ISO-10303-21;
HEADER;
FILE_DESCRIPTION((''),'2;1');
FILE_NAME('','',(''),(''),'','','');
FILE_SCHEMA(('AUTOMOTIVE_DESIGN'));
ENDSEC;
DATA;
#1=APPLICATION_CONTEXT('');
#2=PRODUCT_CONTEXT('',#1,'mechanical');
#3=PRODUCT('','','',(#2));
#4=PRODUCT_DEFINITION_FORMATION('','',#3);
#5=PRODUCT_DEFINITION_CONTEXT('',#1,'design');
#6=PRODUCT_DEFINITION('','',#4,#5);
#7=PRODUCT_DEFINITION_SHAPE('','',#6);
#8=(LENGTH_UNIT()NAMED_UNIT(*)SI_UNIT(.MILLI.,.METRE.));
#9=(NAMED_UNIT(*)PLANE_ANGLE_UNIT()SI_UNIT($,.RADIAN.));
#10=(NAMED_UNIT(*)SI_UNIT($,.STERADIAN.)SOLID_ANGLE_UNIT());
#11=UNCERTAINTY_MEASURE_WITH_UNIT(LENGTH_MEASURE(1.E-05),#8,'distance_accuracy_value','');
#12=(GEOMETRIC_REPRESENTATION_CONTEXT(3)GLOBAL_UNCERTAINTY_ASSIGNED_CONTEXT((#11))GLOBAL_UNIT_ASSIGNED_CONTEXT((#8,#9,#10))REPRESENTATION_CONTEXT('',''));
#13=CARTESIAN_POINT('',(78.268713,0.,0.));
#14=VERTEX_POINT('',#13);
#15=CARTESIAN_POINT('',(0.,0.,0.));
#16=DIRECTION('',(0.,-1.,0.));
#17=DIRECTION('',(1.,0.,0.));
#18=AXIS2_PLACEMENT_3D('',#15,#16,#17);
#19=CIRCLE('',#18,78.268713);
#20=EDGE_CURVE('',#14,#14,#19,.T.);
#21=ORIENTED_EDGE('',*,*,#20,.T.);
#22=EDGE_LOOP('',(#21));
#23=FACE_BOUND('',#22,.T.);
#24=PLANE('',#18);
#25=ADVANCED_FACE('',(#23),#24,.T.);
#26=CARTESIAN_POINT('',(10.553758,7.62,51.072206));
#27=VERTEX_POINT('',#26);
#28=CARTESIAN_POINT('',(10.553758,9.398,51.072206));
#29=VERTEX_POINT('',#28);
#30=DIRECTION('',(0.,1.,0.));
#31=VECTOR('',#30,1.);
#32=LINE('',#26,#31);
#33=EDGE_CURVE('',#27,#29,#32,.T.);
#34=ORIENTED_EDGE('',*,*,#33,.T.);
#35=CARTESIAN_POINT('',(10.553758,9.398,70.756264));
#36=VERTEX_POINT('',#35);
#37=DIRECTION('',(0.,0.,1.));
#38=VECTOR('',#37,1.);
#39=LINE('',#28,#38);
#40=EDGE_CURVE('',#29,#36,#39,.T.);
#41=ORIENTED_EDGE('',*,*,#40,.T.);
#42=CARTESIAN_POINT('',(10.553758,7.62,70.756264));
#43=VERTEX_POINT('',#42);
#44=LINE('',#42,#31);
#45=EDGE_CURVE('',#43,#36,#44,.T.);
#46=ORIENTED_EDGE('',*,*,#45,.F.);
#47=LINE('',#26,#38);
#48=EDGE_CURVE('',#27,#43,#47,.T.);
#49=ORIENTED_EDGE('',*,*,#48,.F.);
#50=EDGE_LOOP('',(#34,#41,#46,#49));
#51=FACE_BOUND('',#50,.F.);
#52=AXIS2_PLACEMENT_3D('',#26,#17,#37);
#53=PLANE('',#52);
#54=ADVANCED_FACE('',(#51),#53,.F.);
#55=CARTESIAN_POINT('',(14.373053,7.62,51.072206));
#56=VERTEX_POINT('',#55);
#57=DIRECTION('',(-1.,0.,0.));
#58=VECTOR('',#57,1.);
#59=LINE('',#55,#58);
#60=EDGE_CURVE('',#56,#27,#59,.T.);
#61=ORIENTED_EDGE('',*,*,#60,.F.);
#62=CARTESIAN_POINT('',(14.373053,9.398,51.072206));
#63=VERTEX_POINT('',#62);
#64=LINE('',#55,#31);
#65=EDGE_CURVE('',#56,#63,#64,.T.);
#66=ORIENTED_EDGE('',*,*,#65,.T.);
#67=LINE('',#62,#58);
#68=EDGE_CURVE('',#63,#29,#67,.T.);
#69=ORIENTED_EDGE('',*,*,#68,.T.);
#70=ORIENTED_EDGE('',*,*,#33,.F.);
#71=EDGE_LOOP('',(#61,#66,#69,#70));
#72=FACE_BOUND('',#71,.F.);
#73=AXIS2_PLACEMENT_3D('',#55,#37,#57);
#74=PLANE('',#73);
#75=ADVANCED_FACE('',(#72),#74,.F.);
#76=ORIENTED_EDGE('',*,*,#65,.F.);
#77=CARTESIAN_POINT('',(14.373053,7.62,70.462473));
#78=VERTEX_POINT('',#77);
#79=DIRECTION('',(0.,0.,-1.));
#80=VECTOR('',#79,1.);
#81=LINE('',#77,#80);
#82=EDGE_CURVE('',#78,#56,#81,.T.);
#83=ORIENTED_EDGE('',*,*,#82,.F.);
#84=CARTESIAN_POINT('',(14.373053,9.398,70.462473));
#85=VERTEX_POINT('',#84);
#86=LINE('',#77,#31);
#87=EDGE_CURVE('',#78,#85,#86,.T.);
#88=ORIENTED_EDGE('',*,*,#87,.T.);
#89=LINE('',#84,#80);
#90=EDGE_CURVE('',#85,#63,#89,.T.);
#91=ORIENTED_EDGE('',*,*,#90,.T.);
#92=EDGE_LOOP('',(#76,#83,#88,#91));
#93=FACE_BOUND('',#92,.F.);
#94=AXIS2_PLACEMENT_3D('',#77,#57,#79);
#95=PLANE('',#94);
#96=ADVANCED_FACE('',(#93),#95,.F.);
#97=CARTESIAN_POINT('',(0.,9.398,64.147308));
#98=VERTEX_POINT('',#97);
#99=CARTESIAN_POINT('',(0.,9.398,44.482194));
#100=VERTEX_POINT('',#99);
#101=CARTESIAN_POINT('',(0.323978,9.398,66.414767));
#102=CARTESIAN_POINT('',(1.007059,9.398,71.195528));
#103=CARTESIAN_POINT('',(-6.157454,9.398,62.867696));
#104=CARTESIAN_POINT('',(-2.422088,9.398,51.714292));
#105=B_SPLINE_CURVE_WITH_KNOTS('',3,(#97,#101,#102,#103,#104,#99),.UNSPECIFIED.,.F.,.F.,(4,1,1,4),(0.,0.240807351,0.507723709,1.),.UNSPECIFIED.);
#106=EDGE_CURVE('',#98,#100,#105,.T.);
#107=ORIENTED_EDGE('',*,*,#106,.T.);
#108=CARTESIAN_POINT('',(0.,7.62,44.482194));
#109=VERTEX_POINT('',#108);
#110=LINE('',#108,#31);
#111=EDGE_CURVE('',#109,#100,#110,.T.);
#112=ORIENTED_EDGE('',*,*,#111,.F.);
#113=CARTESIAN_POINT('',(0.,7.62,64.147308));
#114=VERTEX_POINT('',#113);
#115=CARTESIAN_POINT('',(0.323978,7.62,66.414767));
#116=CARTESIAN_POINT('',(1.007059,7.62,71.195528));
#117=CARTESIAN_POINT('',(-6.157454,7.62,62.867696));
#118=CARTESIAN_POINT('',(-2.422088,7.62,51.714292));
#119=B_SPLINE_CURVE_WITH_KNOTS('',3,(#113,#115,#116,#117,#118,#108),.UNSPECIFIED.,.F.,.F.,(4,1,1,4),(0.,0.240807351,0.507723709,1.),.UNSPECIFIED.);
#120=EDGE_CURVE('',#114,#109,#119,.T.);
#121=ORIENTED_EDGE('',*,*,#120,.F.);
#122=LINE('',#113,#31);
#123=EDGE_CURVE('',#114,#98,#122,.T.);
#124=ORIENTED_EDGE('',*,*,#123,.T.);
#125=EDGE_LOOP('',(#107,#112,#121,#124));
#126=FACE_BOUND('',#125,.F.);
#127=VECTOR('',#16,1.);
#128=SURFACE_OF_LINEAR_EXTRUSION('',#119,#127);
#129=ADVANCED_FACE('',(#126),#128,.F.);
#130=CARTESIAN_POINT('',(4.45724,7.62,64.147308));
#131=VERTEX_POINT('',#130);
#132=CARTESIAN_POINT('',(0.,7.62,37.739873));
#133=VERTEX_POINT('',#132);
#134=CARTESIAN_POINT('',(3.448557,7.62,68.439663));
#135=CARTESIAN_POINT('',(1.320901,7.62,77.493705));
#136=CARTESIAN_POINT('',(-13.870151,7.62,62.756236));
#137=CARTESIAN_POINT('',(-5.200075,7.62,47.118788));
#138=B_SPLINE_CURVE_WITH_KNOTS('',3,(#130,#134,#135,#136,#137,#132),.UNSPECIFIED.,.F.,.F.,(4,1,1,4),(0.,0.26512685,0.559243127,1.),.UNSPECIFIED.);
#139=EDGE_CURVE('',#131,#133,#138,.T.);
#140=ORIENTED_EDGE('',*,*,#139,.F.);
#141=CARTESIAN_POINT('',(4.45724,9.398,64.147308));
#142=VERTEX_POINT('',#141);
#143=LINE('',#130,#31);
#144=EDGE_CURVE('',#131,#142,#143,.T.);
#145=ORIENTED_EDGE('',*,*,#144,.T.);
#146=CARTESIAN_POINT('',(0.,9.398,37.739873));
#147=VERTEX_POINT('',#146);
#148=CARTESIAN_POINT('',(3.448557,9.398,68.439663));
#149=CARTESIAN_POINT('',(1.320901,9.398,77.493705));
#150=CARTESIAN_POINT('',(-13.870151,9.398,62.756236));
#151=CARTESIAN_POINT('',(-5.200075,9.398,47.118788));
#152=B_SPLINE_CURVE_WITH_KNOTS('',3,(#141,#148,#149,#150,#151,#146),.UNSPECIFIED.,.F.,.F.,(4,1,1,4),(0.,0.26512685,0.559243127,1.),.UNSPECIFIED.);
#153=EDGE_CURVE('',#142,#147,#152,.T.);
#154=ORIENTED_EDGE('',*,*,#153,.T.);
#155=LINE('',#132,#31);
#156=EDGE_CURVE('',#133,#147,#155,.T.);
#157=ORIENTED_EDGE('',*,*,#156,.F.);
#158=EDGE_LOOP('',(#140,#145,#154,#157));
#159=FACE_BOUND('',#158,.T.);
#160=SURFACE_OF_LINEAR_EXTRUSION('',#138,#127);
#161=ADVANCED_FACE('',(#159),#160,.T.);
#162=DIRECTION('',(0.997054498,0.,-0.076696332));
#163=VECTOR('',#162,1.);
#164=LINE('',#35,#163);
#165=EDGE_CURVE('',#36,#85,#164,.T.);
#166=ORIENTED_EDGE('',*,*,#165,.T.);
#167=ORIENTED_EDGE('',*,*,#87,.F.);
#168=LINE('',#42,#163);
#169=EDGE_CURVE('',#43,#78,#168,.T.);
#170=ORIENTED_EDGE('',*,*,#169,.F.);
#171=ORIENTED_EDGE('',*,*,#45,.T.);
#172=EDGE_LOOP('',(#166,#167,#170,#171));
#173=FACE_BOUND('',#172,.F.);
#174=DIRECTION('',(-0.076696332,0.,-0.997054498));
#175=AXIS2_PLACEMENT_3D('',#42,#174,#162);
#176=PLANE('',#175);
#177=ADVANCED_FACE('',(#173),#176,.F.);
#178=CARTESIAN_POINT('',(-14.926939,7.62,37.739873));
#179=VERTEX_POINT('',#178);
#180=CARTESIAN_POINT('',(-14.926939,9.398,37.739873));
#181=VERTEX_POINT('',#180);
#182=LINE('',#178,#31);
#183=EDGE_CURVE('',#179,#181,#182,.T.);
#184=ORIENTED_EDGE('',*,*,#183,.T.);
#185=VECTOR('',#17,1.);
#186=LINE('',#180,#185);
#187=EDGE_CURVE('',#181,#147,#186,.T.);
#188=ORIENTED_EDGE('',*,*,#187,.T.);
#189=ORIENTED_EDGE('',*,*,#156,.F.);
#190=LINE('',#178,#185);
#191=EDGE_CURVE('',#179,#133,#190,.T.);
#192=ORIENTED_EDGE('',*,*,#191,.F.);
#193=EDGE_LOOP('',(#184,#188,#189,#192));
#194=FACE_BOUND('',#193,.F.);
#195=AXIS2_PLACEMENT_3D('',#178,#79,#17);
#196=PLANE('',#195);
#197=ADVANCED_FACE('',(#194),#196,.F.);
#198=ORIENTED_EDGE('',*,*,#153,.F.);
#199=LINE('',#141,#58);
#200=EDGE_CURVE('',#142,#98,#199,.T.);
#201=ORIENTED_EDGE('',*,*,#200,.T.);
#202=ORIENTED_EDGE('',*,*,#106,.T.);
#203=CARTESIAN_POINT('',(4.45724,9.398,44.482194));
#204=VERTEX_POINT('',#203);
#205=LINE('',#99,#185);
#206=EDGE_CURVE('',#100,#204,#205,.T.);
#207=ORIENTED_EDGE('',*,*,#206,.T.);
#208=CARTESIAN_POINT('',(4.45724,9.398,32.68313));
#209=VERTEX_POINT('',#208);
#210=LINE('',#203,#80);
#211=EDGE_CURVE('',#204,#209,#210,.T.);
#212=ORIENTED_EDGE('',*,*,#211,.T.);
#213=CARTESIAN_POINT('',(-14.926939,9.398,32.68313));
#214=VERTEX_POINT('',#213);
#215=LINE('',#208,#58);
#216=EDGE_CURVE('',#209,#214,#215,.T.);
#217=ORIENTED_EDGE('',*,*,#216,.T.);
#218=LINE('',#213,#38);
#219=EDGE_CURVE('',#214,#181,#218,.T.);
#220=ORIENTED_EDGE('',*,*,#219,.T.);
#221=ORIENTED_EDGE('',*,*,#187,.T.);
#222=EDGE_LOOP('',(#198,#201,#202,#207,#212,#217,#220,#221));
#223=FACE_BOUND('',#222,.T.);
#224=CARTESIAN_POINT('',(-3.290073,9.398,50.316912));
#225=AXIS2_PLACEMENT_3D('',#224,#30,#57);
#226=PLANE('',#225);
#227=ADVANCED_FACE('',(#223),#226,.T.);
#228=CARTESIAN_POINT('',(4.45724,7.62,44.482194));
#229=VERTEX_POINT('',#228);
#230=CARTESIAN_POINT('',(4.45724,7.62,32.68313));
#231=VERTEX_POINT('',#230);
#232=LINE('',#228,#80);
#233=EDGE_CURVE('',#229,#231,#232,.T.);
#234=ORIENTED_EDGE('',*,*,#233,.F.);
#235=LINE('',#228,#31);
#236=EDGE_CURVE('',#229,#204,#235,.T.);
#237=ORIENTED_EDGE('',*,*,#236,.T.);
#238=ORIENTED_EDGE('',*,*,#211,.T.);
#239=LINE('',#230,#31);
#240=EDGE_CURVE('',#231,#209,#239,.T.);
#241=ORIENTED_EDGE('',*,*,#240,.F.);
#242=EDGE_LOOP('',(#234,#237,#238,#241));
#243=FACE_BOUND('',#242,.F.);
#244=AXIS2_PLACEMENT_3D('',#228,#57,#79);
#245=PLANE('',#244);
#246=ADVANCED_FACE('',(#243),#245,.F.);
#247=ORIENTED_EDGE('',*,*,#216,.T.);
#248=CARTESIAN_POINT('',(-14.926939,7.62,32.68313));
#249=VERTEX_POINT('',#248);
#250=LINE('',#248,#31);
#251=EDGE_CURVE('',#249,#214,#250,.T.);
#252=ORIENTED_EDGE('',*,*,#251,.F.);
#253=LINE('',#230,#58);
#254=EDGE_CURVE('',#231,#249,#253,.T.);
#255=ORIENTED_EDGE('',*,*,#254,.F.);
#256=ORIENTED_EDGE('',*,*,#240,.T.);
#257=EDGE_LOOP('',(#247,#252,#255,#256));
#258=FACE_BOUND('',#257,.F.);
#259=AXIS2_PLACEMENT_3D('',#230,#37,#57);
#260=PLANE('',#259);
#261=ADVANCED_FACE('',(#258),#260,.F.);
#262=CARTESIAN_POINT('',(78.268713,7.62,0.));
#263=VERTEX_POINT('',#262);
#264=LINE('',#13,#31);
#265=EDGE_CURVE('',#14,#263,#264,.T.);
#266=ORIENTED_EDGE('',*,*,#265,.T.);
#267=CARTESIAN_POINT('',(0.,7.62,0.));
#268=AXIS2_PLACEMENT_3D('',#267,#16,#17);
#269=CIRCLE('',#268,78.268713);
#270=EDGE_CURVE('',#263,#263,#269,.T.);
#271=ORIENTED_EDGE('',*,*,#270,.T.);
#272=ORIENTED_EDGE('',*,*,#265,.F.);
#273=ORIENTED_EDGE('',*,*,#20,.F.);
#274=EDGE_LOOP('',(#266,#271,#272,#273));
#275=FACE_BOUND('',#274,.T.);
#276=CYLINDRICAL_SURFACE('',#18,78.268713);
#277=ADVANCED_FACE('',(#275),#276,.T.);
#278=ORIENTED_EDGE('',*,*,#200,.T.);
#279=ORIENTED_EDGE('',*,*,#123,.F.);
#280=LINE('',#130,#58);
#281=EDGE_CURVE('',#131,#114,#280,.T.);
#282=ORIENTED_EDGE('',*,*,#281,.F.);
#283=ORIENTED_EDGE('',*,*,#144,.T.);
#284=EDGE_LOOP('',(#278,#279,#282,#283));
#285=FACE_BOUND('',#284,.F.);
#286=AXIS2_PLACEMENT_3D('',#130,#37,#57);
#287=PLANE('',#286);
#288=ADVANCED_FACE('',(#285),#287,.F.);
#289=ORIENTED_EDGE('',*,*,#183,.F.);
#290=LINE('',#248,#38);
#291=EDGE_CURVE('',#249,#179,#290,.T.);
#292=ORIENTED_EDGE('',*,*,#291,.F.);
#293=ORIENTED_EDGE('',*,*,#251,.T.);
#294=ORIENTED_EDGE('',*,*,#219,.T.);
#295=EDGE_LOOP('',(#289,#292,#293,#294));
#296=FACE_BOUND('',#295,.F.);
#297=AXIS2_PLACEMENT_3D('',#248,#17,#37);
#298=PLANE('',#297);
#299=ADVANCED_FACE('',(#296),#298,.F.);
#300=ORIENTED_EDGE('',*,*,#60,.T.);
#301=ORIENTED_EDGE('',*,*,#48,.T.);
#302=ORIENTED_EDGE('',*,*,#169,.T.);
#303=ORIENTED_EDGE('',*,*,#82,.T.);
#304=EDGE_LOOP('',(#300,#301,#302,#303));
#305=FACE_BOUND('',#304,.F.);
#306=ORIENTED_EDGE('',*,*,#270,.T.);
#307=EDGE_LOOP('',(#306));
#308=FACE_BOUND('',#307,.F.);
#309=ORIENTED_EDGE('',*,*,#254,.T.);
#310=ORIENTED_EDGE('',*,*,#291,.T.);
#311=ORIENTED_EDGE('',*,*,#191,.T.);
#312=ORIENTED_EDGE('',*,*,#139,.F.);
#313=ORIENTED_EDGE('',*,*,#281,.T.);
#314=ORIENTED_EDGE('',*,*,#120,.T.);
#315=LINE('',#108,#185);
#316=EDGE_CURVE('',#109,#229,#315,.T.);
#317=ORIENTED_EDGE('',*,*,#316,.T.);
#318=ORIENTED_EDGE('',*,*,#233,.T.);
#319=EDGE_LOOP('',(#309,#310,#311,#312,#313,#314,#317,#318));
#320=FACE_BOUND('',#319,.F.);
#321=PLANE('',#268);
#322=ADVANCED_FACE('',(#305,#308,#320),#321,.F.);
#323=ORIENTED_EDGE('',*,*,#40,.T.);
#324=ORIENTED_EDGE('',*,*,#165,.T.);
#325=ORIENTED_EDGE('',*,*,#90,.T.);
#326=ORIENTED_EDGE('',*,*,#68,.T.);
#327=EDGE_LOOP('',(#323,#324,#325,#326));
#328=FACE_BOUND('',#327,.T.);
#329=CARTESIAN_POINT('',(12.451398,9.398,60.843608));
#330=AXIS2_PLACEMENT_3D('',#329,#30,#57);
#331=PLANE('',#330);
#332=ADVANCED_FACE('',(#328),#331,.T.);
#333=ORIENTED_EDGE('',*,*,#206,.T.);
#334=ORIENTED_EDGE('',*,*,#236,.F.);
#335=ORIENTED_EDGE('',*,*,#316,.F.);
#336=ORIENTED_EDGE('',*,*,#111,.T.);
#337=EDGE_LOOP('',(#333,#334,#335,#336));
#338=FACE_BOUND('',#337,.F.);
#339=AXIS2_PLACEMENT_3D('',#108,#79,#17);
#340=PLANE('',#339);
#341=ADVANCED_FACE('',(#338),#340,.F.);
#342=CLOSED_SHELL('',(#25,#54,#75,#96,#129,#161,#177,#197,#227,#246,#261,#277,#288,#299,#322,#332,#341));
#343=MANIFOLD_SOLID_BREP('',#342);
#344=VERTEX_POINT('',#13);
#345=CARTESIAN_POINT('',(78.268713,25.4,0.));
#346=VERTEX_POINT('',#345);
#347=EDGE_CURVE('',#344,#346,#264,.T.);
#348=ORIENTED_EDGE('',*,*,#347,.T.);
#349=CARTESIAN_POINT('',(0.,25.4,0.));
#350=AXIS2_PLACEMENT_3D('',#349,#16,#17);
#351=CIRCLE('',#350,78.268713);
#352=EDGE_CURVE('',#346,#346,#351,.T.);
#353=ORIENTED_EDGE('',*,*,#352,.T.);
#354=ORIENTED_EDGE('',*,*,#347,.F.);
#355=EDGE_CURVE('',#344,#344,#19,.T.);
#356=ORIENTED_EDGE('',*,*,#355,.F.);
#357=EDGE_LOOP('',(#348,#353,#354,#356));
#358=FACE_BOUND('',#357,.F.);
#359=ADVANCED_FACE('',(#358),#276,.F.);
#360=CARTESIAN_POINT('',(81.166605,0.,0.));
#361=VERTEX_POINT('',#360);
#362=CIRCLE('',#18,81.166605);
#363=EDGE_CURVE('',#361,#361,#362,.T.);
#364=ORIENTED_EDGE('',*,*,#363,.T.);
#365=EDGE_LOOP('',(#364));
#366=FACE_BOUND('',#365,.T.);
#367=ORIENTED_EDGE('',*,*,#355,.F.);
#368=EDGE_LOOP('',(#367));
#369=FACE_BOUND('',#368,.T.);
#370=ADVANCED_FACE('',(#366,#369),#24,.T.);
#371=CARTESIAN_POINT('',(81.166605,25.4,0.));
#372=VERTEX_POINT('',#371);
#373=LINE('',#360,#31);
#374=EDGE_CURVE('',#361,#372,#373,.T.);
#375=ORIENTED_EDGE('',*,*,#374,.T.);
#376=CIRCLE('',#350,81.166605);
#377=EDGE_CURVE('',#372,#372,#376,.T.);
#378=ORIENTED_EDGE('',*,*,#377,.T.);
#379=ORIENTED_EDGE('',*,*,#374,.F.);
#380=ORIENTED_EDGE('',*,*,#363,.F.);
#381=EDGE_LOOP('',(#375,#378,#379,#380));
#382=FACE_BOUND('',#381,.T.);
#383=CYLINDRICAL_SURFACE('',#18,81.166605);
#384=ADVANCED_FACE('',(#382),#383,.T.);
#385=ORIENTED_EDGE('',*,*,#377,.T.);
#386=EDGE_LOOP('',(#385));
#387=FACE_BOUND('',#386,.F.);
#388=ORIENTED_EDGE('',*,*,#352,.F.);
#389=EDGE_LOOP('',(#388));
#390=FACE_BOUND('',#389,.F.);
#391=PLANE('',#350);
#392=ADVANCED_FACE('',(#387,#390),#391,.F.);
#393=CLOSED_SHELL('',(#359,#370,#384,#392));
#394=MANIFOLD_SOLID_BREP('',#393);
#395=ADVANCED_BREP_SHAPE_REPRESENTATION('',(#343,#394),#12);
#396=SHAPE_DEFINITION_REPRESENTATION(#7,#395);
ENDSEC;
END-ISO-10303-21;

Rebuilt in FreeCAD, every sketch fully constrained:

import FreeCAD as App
import Part
import Sketcher

V = App.Vector


def add_polygon(sketch, points):
    """Adds a closed chain of lines whose ends are joined by coincident constraints."""
    first, n = sketch.GeometryCount, len(points)
    for a, b in zip(points, points[1:] + points[:1]):
        sketch.addGeometry(Part.LineSegment(App.Vector(*a, 0), App.Vector(*b, 0)), False)
    for i in range(n):
        sketch.addConstraint(Sketcher.Constraint("Coincident", first + i, 2, first + (i + 1) % n, 1))

doc = App.newDocument("Part")
params = doc.addObject("Spreadsheet::Sheet", "Params")
for row, (alias, value) in enumerate([
    ("pad1_length", "1 in"),
    ("pad2_length", "0.3 in"),
    ("pad3_length", "0.07 in"),
], start=1):
    params.set(f"A{row}", alias)
    params.set(f"B{row}", "=" + value)
    params.setAlias(f"B{row}", alias)

body = doc.addObject("PartDesign::Body", "Body")

# Sketch on XZ plane
sketch1 = doc.addObject("Sketcher::SketchObject", "Sketch")
body.addObject(sketch1)
sketch1.AttachmentSupport = (doc.XZ_Plane, [""])
sketch1.MapMode = "FlatFace"
sketch1.addGeometry([
    Part.Circle(V(0, 0, 0), V(0, 0, 1), 81.166605),
    Part.Circle(V(0, 0, 0), V(0, 0, 1), 78.268713),
], False)
sketch1.addConstraint([
    Sketcher.Constraint("Coincident", 0, 3, -1, 1),
    Sketcher.Constraint("Coincident", 1, 3, -1, 1),
    Sketcher.Constraint("Diameter", 0, 162.333211),
    Sketcher.Constraint("Diameter", 1, 156.537426),
])
pad1 = doc.addObject("PartDesign::Pad", "Pad")
body.addObject(pad1)
pad1.Profile = sketch1
pad1.setExpression("Length", "Params.pad1_length")
pad1.Reversed = True
body2 = doc.addObject("PartDesign::Body", "Body001")

# Sketch on XZ plane
sketch2 = doc.addObject("Sketcher::SketchObject", "Sketch001")
body2.addObject(sketch2)
sketch2.AttachmentSupport = (doc.getObject("XZ_Plane001"), [""])
sketch2.MapMode = "FlatFace"
sketch2.addGeometry(Part.Circle(V(0, 0, 0), V(0, 0, 1), 78.268713), False)
sketch2.addConstraint([
    Sketcher.Constraint("Coincident", 0, 3, -1, 1),
    Sketcher.Constraint("Diameter", 0, 156.537426),
])
pad2 = doc.addObject("PartDesign::Pad", "Pad001")
body2.addObject(pad2)
pad2.Profile = sketch2
pad2.setExpression("Length", "Params.pad2_length")
pad2.Reversed = True

# Sketch on XZ plane
sketch3 = doc.addObject("Sketcher::SketchObject", "Sketch002")
body2.addObject(sketch3)
sketch3.AttachmentSupport = (doc.getObject("XZ_Plane001"), [""])
sketch3.MapMode = "FlatFace"
sketch3.AttachmentOffset = App.Placement(V(0, 0, -0.3 * 25.4), App.Rotation())
add_polygon(sketch3, [(10.553758, 70.756264), (14.373053, 70.462473), (14.373053, 51.072206), (10.553758, 51.072206)])  # lines 0-3
sketch3.addGeometry(Part.LineSegment(V(4.45724, 64.147308, 0), V(0, 64.147308, 0)), False)  # 4
sketch3.addGeometry(Part.BSplineCurve([V(0, 64.147308, 0), V(0.323978, 66.414767, 0), V(1.007059, 71.195528, 0), V(-6.157454, 62.867696, 0), V(-2.422088, 51.714292, 0), V(0, 44.482194, 0)], [4, 1, 1, 4], [0, 0.240807351, 0.507723709, 1], False, 3, [1, 1, 1, 1, 1, 1], False), False)  # 5
sketch3.addGeometry(Part.LineSegment(V(0, 44.482194, 0), V(4.45724, 44.482194, 0)), False)  # 6
sketch3.addGeometry(Part.LineSegment(V(4.45724, 44.482194, 0), V(4.45724, 32.68313, 0)), False)  # 7
sketch3.addGeometry(Part.LineSegment(V(4.45724, 32.68313, 0), V(-14.926939, 32.68313, 0)), False)  # 8
sketch3.addGeometry(Part.LineSegment(V(-14.926939, 32.68313, 0), V(-14.926939, 37.739873, 0)), False)  # 9
sketch3.addGeometry(Part.LineSegment(V(-14.926939, 37.739873, 0), V(0, 37.739873, 0)), False)  # 10
sketch3.addGeometry(Part.BSplineCurve([V(4.45724, 64.147308, 0), V(3.448557, 68.439663, 0), V(1.320901, 77.493705, 0), V(-13.870151, 62.756236, 0), V(-5.200075, 47.118788, 0), V(0, 37.739873, 0)], [4, 1, 1, 4], [0, 0.26512685, 0.559243127, 1], False, 3, [1, 1, 1, 1, 1, 1], False), False)  # 11
sketch3.addConstraint([
    Sketcher.Constraint("Block", 5),
    Sketcher.Constraint("Block", 11),
    Sketcher.Constraint("Coincident", 4, 2, 5, 1),
    Sketcher.Constraint("Coincident", 5, 2, 6, 1),
    Sketcher.Constraint("Coincident", 6, 2, 7, 1),
    Sketcher.Constraint("Coincident", 7, 2, 8, 1),
    Sketcher.Constraint("Coincident", 8, 2, 9, 1),
    Sketcher.Constraint("Coincident", 9, 2, 10, 1),
    Sketcher.Constraint("Coincident", 10, 2, 11, 2),
    Sketcher.Constraint("Coincident", 11, 1, 4, 1),
    Sketcher.Constraint("Vertical", 1),
    Sketcher.Constraint("Horizontal", 2),
    Sketcher.Constraint("Vertical", 3),
    Sketcher.Constraint("Horizontal", 6),
    Sketcher.Constraint("Vertical", 7),
    Sketcher.Constraint("Horizontal", 8),
    Sketcher.Constraint("Vertical", 9),
    Sketcher.Constraint("Horizontal", 10),
    Sketcher.Constraint("Equal", 4, 6),
    Sketcher.Constraint("DistanceX", 8, 2, 8, 1, 19.384179),
    Sketcher.Constraint("Distance", 0, 3.830578),
    Sketcher.Constraint("DistanceX", 2, 2, 2, 1, 3.819295),
    Sketcher.Constraint("DistanceY", 1, 2, 1, 1, 19.390266),
    Sketcher.Constraint("DistanceY", 7, 2, 7, 1, 11.799064),
    Sketcher.Constraint("DistanceX", 6, 2, 2, 2, 6.096518),
    Sketcher.Constraint("DistanceY", 6, 2, 3, 2, 26.27407),
])
pad3 = doc.addObject("PartDesign::Pad", "Pad002")
body2.addObject(pad3)
pad3.Profile = sketch3
pad3.setExpression("Length", "Params.pad3_length")
pad3.Reversed = True

doc.recompute()
